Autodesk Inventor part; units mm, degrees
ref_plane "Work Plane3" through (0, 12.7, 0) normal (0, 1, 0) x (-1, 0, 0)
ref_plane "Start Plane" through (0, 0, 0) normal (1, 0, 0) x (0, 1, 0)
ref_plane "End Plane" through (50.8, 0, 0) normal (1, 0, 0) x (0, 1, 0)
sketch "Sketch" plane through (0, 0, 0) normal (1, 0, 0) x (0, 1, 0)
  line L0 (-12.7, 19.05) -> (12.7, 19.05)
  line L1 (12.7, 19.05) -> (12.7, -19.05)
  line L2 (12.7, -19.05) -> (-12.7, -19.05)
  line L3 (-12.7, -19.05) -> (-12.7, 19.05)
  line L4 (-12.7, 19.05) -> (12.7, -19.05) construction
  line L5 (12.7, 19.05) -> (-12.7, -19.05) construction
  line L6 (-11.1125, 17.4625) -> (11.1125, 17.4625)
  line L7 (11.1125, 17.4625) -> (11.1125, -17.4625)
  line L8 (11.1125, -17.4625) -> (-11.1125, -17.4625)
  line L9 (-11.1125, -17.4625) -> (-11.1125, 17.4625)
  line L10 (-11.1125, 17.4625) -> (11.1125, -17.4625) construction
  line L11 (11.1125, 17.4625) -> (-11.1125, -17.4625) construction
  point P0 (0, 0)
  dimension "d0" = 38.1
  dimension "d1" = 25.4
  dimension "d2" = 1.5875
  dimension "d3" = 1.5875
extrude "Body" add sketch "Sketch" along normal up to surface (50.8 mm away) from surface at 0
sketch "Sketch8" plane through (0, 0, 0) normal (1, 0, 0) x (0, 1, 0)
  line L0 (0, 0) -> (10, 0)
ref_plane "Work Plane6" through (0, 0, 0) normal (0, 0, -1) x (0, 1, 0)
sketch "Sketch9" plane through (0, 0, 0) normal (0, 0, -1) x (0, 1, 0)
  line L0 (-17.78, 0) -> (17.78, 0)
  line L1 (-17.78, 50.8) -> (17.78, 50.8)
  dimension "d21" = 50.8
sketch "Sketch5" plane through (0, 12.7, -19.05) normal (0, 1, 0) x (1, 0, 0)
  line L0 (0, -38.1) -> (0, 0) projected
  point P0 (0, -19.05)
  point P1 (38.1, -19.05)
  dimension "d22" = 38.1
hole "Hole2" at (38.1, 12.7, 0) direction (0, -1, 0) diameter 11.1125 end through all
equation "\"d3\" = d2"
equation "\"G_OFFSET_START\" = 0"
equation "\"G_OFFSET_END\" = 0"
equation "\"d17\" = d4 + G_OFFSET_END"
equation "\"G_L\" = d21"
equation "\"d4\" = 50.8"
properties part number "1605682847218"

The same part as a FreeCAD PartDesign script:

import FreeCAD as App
import Part
import Sketcher
Q = App.Units.Quantity

doc = App.newDocument("Part")
body = doc.addObject("PartDesign::Body", "Body")

sketch1 = body.newObject("Sketcher::SketchObject", "Sketch")
sketch1.AttachmentSupport = (doc.getObject("YZ_Plane"), [""])
sketch1.MapMode = "FlatFace"
sketch1.addGeometry(Part.LineSegment(App.Vector(13, 19, 0), App.Vector(-13, 19, 0)), False)
sketch1.addGeometry(Part.LineSegment(App.Vector(-13, 19, 0), App.Vector(-13, -19, 0)), False)
sketch1.addGeometry(Part.LineSegment(App.Vector(-13, -19, 0), App.Vector(13, -19, 0)), False)
sketch1.addGeometry(Part.LineSegment(App.Vector(13, -19, 0), App.Vector(13, 19, 0)), False)
sketch1.addGeometry(Part.LineSegment(App.Vector(-11, -17, 0), App.Vector(-11, 17, 0)), False)
sketch1.addGeometry(Part.LineSegment(App.Vector(-11, 17, 0), App.Vector(11, 17, 0)), False)
sketch1.addGeometry(Part.LineSegment(App.Vector(11, 17, 0), App.Vector(11, -17, 0)), False)
sketch1.addGeometry(Part.LineSegment(App.Vector(11, -17, 0), App.Vector(-11, -17, 0)), False)
sketch1.addConstraint(Sketcher.Constraint("Coincident", 0, 2, 1, 1))
sketch1.addConstraint(Sketcher.Constraint("Coincident", 1, 2, 2, 1))
sketch1.addConstraint(Sketcher.Constraint("Coincident", 2, 2, 3, 1))
sketch1.addConstraint(Sketcher.Constraint("Coincident", 3, 2, 0, 1))
sketch1.addConstraint(Sketcher.Constraint("Coincident", 4, 2, 5, 1))
sketch1.addConstraint(Sketcher.Constraint("Coincident", 5, 2, 6, 1))
sketch1.addConstraint(Sketcher.Constraint("Coincident", 6, 2, 7, 1))
sketch1.addConstraint(Sketcher.Constraint("Coincident", 7, 2, 4, 1))
sketch1.addConstraint(Sketcher.Constraint("Horizontal", 0))
sketch1.addConstraint(Sketcher.Constraint("Vertical", 1))
sketch1.addConstraint(Sketcher.Constraint("Horizontal", 2))
sketch1.addConstraint(Sketcher.Constraint("Vertical", 3))
sketch1.addConstraint(Sketcher.Constraint("Vertical", 4))
sketch1.addConstraint(Sketcher.Constraint("Horizontal", 5))
sketch1.addConstraint(Sketcher.Constraint("Vertical", 6))
sketch1.addConstraint(Sketcher.Constraint("Horizontal", 7))
sketch1.addConstraint(Sketcher.Constraint("Symmetric", 0, 2, 2, 2, -1, 1))
sketch1.addConstraint(Sketcher.Constraint("Symmetric", 4, 2, 6, 2, -1, 1))
sketch1.addConstraint(Sketcher.Constraint("DistanceX", 0, 2, 0, 1, Q("1 in")))
sketch1.addConstraint(Sketcher.Constraint("DistanceY", 1, 2, 1, 1, Q("1.5 in")))
sketch1.addConstraint(Sketcher.Constraint("DistanceX", 0, 2, 4, 2, Q("0.0625 in")))
sketch1.addConstraint(Sketcher.Constraint("DistanceY", 4, 2, 0, 2, Q("0.0625 in")))
pad1 = body.newObject("PartDesign::Pad", "Pad")
pad1.Profile = sketch1
pad1.Length = Q("2 in")

sketch2 = body.newObject("Sketcher::SketchObject", "Sketch001")
sketch2.AttachmentSupport = (doc.getObject("XZ_Plane"), [""])
sketch2.MapMode = "FlatFace"
sketch2.AttachmentOffset = App.Placement(App.Vector(0, 0, -0.5 * 25.4), App.Rotation())
sketch2.addGeometry(Part.Circle(App.Vector(38, 0, 0), App.Vector(0, 0, 1), 6), False)
sketch2.addConstraint(Sketcher.Constraint("PointOnObject", 0, 3, -1))
sketch2.addConstraint(Sketcher.Constraint("Diameter", 0, Q("0.4375 in")))
sketch2.addConstraint(Sketcher.Constraint("DistanceX", -1, 1, 0, 3, Q("1.5 in")))
doc.recompute()
hole = body.newObject("PartDesign::Hole", "Hole")
hole.Profile = sketch2
hole.ThreadType = "None"
hole.Diameter = Q("0.4375 in")
hole.DepthType = "ThroughAll"
hole.Reversed = True

doc.recompute()
